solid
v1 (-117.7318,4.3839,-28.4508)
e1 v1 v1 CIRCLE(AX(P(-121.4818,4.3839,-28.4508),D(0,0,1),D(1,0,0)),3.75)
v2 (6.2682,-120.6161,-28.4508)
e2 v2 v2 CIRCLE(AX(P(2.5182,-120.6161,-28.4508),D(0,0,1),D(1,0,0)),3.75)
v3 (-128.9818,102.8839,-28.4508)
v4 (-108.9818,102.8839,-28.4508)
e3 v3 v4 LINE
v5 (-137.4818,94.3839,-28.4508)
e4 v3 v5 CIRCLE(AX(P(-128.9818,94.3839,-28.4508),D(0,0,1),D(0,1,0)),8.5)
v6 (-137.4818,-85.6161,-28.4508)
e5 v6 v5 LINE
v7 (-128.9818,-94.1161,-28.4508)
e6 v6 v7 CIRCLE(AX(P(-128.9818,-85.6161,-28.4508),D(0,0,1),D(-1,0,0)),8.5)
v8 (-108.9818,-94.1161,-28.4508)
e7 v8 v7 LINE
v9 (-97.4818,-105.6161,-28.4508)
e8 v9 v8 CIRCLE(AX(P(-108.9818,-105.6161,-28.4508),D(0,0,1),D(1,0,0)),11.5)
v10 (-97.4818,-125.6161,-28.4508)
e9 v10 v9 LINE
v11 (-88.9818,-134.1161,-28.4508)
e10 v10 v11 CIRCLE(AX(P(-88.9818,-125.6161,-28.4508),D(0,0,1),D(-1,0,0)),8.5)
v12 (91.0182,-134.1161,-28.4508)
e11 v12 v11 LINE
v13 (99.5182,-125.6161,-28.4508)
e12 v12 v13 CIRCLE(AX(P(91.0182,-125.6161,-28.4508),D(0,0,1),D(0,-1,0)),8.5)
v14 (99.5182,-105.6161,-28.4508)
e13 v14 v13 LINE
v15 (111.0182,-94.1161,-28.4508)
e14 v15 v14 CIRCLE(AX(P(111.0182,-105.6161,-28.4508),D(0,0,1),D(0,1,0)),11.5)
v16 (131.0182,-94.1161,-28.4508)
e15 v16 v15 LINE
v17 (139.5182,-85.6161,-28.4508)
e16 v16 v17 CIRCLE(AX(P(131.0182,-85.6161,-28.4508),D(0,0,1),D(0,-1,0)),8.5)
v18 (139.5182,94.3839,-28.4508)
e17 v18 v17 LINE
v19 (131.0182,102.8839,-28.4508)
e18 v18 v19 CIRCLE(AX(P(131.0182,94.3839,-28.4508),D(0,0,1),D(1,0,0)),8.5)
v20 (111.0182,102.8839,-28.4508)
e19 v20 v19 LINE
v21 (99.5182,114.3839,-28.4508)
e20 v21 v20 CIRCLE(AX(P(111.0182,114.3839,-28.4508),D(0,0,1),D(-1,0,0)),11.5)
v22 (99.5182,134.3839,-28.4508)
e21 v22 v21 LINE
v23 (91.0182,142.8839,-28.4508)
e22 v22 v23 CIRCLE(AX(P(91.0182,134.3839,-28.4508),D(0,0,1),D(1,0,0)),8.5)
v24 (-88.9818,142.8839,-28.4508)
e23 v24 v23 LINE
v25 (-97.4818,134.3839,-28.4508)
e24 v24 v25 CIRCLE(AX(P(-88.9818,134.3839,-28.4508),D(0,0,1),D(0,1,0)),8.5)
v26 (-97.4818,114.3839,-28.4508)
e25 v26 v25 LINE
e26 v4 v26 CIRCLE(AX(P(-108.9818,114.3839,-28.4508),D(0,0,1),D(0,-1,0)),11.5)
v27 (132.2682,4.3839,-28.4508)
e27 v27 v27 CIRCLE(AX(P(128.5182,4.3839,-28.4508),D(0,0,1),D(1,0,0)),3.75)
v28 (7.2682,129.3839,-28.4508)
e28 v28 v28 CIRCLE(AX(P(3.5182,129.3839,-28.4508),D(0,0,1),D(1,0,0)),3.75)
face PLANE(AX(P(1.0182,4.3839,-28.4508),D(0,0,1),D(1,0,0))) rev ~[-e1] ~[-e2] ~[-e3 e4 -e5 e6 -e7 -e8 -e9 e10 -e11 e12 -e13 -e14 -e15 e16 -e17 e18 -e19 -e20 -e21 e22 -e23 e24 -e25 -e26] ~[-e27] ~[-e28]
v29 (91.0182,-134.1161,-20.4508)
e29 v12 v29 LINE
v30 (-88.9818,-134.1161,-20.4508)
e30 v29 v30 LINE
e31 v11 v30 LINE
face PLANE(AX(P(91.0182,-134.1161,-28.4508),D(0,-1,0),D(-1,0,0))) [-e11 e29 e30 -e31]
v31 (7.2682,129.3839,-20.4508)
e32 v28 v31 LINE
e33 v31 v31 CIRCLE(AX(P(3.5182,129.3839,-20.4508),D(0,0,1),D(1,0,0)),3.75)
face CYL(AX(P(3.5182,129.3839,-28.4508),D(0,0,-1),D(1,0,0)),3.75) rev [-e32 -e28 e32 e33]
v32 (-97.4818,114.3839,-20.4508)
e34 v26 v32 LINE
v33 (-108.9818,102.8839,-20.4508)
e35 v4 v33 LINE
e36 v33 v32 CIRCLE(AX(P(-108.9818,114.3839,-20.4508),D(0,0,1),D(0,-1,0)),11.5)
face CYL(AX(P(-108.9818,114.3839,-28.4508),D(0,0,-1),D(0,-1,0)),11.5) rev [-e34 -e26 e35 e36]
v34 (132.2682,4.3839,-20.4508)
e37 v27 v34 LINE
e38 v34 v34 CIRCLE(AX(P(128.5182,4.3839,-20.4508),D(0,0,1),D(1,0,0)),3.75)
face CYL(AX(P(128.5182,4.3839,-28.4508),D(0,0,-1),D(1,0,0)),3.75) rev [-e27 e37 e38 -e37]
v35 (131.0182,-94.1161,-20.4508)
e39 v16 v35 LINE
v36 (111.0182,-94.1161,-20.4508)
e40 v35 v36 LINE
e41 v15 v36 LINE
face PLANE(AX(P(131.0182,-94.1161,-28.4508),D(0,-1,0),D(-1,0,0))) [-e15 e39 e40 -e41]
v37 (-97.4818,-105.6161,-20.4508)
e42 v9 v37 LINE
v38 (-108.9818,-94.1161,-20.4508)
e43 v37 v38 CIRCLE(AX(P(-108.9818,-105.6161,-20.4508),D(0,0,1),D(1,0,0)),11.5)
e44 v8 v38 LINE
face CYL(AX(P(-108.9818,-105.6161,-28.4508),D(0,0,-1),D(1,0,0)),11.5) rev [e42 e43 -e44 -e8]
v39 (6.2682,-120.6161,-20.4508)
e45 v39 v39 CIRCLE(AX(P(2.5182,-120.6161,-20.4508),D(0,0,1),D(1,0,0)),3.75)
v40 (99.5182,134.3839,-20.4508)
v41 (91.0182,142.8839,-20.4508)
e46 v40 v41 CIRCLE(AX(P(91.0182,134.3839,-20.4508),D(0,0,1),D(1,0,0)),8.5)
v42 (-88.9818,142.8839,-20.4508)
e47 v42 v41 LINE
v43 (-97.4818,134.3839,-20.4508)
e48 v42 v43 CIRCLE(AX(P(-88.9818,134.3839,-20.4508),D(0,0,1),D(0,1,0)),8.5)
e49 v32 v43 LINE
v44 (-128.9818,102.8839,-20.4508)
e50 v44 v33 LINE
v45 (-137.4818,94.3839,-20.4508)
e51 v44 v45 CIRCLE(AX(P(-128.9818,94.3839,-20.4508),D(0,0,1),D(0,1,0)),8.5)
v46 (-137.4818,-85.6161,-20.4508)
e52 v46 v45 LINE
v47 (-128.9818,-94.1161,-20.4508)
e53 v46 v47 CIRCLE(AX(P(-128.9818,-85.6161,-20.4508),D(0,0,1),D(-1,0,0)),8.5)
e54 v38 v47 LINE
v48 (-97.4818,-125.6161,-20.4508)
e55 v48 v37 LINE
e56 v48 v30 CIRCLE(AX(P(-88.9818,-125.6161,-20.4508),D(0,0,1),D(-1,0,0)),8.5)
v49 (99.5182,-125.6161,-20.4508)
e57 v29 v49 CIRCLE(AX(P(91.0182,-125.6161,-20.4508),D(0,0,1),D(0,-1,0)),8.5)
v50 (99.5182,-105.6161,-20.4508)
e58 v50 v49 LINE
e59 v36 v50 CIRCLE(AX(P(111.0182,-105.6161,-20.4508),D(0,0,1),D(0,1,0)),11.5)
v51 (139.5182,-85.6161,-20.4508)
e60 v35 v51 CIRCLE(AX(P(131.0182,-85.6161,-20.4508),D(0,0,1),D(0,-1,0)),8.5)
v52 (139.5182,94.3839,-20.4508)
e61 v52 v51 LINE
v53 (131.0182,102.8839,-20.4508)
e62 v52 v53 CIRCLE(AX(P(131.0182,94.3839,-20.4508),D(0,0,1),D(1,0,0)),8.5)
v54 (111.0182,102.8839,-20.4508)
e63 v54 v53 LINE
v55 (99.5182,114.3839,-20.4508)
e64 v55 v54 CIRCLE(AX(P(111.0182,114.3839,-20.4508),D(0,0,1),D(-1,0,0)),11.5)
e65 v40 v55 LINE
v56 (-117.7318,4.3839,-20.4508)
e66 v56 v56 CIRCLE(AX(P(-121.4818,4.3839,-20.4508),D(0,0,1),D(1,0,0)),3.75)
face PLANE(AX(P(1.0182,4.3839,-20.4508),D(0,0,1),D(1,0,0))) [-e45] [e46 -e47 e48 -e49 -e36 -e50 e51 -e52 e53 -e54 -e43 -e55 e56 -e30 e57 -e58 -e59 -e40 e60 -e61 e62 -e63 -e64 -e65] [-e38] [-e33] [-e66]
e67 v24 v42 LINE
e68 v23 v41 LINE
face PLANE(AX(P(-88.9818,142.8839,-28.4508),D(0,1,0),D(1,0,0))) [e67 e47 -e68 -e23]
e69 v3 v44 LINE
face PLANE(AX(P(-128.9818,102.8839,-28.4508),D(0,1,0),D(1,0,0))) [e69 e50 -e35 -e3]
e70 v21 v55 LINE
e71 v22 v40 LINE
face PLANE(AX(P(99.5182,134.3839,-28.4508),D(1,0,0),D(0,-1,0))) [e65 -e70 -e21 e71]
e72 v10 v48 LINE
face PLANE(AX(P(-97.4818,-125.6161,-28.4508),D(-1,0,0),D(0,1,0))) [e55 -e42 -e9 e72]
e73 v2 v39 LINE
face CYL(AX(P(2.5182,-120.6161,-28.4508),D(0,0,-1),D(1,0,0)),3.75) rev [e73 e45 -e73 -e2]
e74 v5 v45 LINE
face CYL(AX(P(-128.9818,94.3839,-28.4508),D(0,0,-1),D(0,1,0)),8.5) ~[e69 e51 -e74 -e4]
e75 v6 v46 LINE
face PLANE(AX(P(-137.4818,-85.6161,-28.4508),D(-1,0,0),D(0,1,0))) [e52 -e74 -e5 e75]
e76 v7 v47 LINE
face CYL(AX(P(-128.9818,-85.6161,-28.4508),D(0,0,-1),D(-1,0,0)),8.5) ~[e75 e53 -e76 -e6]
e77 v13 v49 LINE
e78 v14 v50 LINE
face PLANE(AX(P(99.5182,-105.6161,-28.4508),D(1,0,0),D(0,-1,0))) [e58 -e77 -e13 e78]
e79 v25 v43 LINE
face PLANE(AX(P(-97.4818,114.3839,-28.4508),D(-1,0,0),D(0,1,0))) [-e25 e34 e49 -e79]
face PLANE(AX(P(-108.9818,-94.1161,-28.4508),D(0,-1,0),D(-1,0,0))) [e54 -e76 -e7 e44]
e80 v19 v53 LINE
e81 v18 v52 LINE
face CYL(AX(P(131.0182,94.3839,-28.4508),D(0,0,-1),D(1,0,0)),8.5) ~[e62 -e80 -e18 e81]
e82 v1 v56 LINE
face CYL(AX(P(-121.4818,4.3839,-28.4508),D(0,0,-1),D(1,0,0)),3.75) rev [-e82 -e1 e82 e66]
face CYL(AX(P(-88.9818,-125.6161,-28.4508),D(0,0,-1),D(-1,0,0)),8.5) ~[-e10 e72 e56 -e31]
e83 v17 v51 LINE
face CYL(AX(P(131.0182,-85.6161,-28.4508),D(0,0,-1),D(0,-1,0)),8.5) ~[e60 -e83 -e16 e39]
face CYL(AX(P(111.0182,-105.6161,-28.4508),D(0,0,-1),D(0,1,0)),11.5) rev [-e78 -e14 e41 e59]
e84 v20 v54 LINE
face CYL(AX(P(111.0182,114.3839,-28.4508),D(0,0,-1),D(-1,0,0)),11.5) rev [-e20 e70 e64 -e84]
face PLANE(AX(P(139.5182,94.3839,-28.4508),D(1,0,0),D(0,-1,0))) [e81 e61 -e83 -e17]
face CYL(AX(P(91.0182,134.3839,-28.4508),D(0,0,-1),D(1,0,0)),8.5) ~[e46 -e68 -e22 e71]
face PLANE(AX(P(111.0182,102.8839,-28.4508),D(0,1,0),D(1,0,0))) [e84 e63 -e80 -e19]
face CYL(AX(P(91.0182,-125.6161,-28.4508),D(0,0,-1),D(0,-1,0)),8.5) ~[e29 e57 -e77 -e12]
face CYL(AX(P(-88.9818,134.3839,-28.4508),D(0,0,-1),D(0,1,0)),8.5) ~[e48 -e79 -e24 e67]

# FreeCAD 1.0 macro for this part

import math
import FreeCAD as App
import Part
import Sketcher

doc = App.newDocument("Part")
body = doc.addObject("PartDesign::Body", "Body")

# Sketch on XY plane
sketch1 = body.newObject("Sketcher::SketchObject", "Sketch")
sketch1.AttachmentSupport = (doc.getObject("XY_Plane"), [""])
sketch1.MapMode = "FlatFace"
sketch1.AttachmentOffset = App.Placement(App.Vector(0, 0, -28.4508), App.Rotation())
sketch1.addGeometry([
    Part.LineSegment(App.Vector(99.5, 114.4, 0), App.Vector(99.5, 134.4, 0)),  # 0
    Part.ArcOfCircle(Part.Circle(App.Vector(91, 134.4, 0), App.Vector(0, 0, 1), 8.5), math.radians(0), math.radians(90)),  # 1
    Part.LineSegment(App.Vector(91, 142.9, 0), App.Vector(-89, 142.9, 0)),  # 2
    Part.ArcOfCircle(Part.Circle(App.Vector(-89, 134.4, 0), App.Vector(0, 0, 1), 8.5), math.radians(90), math.radians(180)),  # 3
    Part.LineSegment(App.Vector(-97.5, 134.4, 0), App.Vector(-97.5, 114.4, 0)),  # 4
    Part.ArcOfCircle(Part.Circle(App.Vector(-109, 114.4, 0), App.Vector(0, 0, 1), 11.5), math.radians(-90), math.radians(0)),  # 5
    Part.LineSegment(App.Vector(-109, 102.9, 0), App.Vector(-129, 102.9, 0)),  # 6
    Part.ArcOfCircle(Part.Circle(App.Vector(-129, 94.4, 0), App.Vector(0, 0, 1), 8.5), math.radians(90), math.radians(180)),  # 7
    Part.LineSegment(App.Vector(-137.5, 94.4, 0), App.Vector(-137.5, -85.6, 0)),  # 8
    Part.ArcOfCircle(Part.Circle(App.Vector(-129, -85.6, 0), App.Vector(0, 0, 1), 8.5), math.radians(180), math.radians(270)),  # 9
    Part.LineSegment(App.Vector(-129, -94.1, 0), App.Vector(-109, -94.1, 0)),  # 10
    Part.ArcOfCircle(Part.Circle(App.Vector(-109, -105.6, 0), App.Vector(0, 0, 1), 11.5), math.radians(0), math.radians(90)),  # 11
    Part.LineSegment(App.Vector(-97.5, -105.6, 0), App.Vector(-97.5, -125.6, 0)),  # 12
    Part.ArcOfCircle(Part.Circle(App.Vector(-89, -125.6, 0), App.Vector(0, 0, 1), 8.5), math.radians(180), math.radians(270)),  # 13
    Part.LineSegment(App.Vector(-89, -134.1, 0), App.Vector(91, -134.1, 0)),  # 14
    Part.ArcOfCircle(Part.Circle(App.Vector(91, -125.6, 0), App.Vector(0, 0, 1), 8.5), math.radians(-90), math.radians(0)),  # 15
    Part.LineSegment(App.Vector(99.5, -125.6, 0), App.Vector(99.5, -105.6, 0)),  # 16
    Part.ArcOfCircle(Part.Circle(App.Vector(111, -105.6, 0), App.Vector(0, 0, 1), 11.5), math.radians(90), math.radians(180)),  # 17
    Part.LineSegment(App.Vector(111, -94.1, 0), App.Vector(131, -94.1, 0)),  # 18
    Part.ArcOfCircle(Part.Circle(App.Vector(131, -85.6, 0), App.Vector(0, 0, 1), 8.5), math.radians(-90), math.radians(0)),  # 19
    Part.LineSegment(App.Vector(139.5, -85.6, 0), App.Vector(139.5, 94.4, 0)),  # 20
    Part.ArcOfCircle(Part.Circle(App.Vector(131, 94.4, 0), App.Vector(0, 0, 1), 8.5), math.radians(0), math.radians(90)),  # 21
    Part.LineSegment(App.Vector(131, 102.9, 0), App.Vector(111, 102.9, 0)),  # 22
    Part.ArcOfCircle(Part.Circle(App.Vector(111, 114.4, 0), App.Vector(0, 0, 1), 11.5), math.radians(180), math.radians(270)),  # 23
    Part.Circle(App.Vector(2.5, -120.6, 0), App.Vector(0, 0, 1), 3.8),  # 24
    Part.Circle(App.Vector(-121.5, 4.4, 0), App.Vector(0, 0, 1), 3.8),  # 25
    Part.Circle(App.Vector(128.5, 4.4, 0), App.Vector(0, 0, 1), 3.8),  # 26
    Part.Circle(App.Vector(3.5, 129.4, 0), App.Vector(0, 0, 1), 3.8),  # 27
], False)
sketch1.addConstraint([
    Sketcher.Constraint("Tangent", 0, 2, 1, 1),
    Sketcher.Constraint("Tangent", 1, 2, 2, 1),
    Sketcher.Constraint("Tangent", 2, 2, 3, 1),
    Sketcher.Constraint("Tangent", 3, 2, 4, 1),
    Sketcher.Constraint("Tangent", 4, 2, 5, 2),
    Sketcher.Constraint("Tangent", 5, 1, 6, 1),
    Sketcher.Constraint("Tangent", 6, 2, 7, 1),
    Sketcher.Constraint("Tangent", 7, 2, 8, 1),
    Sketcher.Constraint("Tangent", 8, 2, 9, 1),
    Sketcher.Constraint("Tangent", 9, 2, 10, 1),
    Sketcher.Constraint("Tangent", 10, 2, 11, 2),
    Sketcher.Constraint("Tangent", 11, 1, 12, 1),
    Sketcher.Constraint("Tangent", 12, 2, 13, 1),
    Sketcher.Constraint("Tangent", 13, 2, 14, 1),
    Sketcher.Constraint("Tangent", 14, 2, 15, 1),
    Sketcher.Constraint("Tangent", 15, 2, 16, 1),
    Sketcher.Constraint("Tangent", 16, 2, 17, 2),
    Sketcher.Constraint("Tangent", 17, 1, 18, 1),
    Sketcher.Constraint("Tangent", 18, 2, 19, 1),
    Sketcher.Constraint("Tangent", 19, 2, 20, 1),
    Sketcher.Constraint("Tangent", 20, 2, 21, 1),
    Sketcher.Constraint("Tangent", 21, 2, 22, 1),
    Sketcher.Constraint("Tangent", 22, 2, 23, 2),
    Sketcher.Constraint("Tangent", 23, 1, 0, 1),
    Sketcher.Constraint("Vertical", 0),
    Sketcher.Constraint("Horizontal", 2),
    Sketcher.Constraint("Vertical", 4),
    Sketcher.Constraint("Horizontal", 6),
    Sketcher.Constraint("Vertical", 8),
    Sketcher.Constraint("Horizontal", 10),
    Sketcher.Constraint("Vertical", 12),
    Sketcher.Constraint("Horizontal", 14),
    Sketcher.Constraint("Vertical", 16),
    Sketcher.Constraint("Horizontal", 18),
    Sketcher.Constraint("Vertical", 20),
    Sketcher.Constraint("Horizontal", 22),
    Sketcher.Constraint("Equal", 1, 3),
    Sketcher.Constraint("Equal", 3, 7),
    Sketcher.Constraint("Equal", 7, 9),
    Sketcher.Constraint("Equal", 5, 11),
    Sketcher.Constraint("Equal", 9, 13),
    Sketcher.Constraint("Equal", 13, 15),
    Sketcher.Constraint("Equal", 11, 17),
    Sketcher.Constraint("Equal", 15, 19),
    Sketcher.Constraint("Equal", 19, 21),
    Sketcher.Constraint("Equal", 17, 23),
    Sketcher.Constraint("Equal", 24, 25),
    Sketcher.Constraint("Equal", 25, 26),
    Sketcher.Constraint("Equal", 26, 27),
    Sketcher.Constraint("Horizontal", 11, 3, 17, 3),
    Sketcher.Constraint("Horizontal", 7, 3, 21, 3),
    Sketcher.Constraint("Horizontal", 25, 3, 26, 3),
    Sketcher.Constraint("Vertical", 5, 3, 11, 3),
    Sketcher.Constraint("Vertical", 1, 3, 15, 3),
    Sketcher.Constraint("Equal", 10, 18),
    Sketcher.Constraint("Equal", 22, 0),
    Sketcher.Constraint("Equal", 14, 8),
    Sketcher.Constraint("Equal", 4, 12),
    Sketcher.Constraint("Diameter", 24, 7.5),
    Sketcher.Constraint("Radius", 1, 8.5),
    Sketcher.Constraint("Radius", 5, 11.5),
    Sketcher.Constraint("DistanceX", 7, 3, 25, 3, 7.5),
    Sketcher.Constraint("DistanceX", 26, 3, 19, 3, 2.5),
    Sketcher.Constraint("DistanceX", 2, 2, 2, 1, 180.0),
    Sketcher.Constraint("DistanceX", 6, 2, 6, 1, 20.0),
    Sketcher.Constraint("DistanceY", 15, 3, 24, 3, 5.0),
    Sketcher.Constraint("DistanceY", 25, 3, 7, 3, 90.0),
    Sketcher.Constraint("DistanceY", 27, 3, 1, 3, 5.0),
    Sketcher.Constraint("DistanceX", 27, 3, 0, 2, 96.0),
    Sketcher.Constraint("DistanceX", 8, 2, 24, 3, 140.0),
    Sketcher.Constraint("DistanceY", -1, 1, 1, 3, 134.384),
    Sketcher.Constraint("DistanceX", -1, 1, 1, 3, 91.0182),
])
pad1 = body.newObject("PartDesign::Pad", "Pad")
pad1.Profile = sketch1
pad1.Length = 8

doc.recompute()
